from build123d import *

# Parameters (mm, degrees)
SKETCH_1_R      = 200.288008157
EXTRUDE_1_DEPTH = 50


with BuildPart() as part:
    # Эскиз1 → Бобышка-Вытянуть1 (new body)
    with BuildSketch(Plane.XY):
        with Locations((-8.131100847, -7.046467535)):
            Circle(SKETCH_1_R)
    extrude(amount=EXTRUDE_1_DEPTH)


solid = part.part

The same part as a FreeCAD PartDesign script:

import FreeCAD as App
import Part
import Sketcher
Q = App.Units.Quantity

doc = App.newDocument("Part")
params = doc.addObject("Spreadsheet::Sheet", "Params")
for row, (alias, value) in enumerate([
    ("pad1_length", "50 mm"),
], start=1):
    params.set(f"A{row}", alias)
    params.set(f"B{row}", "=" + value)
    params.setAlias(f"B{row}", alias)

body = doc.addObject("PartDesign::Body", "Body")

sketch1 = body.newObject("Sketcher::SketchObject", "Sketch")
sketch1.AttachmentSupport = (doc.getObject("XY_Plane"), [""])
sketch1.MapMode = "FlatFace"
sketch1.addGeometry(Part.Circle(App.Vector(-8.131101, -7.046468, 0), App.Vector(0, 0, 1), 200.288008), False)
sketch1.addConstraint(Sketcher.Constraint("Diameter", 0, Q("400.576016 mm")))
sketch1.addConstraint(Sketcher.Constraint("DistanceX", 0, 3, -1, 1, Q("8.131101 mm")))
sketch1.addConstraint(Sketcher.Constraint("DistanceY", 0, 3, -1, 1, Q("7.046468 mm")))
pad1 = body.newObject("PartDesign::Pad", "Pad")
pad1.Profile = sketch1
pad1.setExpression("Length", "Params.pad1_length")

doc.recompute()
